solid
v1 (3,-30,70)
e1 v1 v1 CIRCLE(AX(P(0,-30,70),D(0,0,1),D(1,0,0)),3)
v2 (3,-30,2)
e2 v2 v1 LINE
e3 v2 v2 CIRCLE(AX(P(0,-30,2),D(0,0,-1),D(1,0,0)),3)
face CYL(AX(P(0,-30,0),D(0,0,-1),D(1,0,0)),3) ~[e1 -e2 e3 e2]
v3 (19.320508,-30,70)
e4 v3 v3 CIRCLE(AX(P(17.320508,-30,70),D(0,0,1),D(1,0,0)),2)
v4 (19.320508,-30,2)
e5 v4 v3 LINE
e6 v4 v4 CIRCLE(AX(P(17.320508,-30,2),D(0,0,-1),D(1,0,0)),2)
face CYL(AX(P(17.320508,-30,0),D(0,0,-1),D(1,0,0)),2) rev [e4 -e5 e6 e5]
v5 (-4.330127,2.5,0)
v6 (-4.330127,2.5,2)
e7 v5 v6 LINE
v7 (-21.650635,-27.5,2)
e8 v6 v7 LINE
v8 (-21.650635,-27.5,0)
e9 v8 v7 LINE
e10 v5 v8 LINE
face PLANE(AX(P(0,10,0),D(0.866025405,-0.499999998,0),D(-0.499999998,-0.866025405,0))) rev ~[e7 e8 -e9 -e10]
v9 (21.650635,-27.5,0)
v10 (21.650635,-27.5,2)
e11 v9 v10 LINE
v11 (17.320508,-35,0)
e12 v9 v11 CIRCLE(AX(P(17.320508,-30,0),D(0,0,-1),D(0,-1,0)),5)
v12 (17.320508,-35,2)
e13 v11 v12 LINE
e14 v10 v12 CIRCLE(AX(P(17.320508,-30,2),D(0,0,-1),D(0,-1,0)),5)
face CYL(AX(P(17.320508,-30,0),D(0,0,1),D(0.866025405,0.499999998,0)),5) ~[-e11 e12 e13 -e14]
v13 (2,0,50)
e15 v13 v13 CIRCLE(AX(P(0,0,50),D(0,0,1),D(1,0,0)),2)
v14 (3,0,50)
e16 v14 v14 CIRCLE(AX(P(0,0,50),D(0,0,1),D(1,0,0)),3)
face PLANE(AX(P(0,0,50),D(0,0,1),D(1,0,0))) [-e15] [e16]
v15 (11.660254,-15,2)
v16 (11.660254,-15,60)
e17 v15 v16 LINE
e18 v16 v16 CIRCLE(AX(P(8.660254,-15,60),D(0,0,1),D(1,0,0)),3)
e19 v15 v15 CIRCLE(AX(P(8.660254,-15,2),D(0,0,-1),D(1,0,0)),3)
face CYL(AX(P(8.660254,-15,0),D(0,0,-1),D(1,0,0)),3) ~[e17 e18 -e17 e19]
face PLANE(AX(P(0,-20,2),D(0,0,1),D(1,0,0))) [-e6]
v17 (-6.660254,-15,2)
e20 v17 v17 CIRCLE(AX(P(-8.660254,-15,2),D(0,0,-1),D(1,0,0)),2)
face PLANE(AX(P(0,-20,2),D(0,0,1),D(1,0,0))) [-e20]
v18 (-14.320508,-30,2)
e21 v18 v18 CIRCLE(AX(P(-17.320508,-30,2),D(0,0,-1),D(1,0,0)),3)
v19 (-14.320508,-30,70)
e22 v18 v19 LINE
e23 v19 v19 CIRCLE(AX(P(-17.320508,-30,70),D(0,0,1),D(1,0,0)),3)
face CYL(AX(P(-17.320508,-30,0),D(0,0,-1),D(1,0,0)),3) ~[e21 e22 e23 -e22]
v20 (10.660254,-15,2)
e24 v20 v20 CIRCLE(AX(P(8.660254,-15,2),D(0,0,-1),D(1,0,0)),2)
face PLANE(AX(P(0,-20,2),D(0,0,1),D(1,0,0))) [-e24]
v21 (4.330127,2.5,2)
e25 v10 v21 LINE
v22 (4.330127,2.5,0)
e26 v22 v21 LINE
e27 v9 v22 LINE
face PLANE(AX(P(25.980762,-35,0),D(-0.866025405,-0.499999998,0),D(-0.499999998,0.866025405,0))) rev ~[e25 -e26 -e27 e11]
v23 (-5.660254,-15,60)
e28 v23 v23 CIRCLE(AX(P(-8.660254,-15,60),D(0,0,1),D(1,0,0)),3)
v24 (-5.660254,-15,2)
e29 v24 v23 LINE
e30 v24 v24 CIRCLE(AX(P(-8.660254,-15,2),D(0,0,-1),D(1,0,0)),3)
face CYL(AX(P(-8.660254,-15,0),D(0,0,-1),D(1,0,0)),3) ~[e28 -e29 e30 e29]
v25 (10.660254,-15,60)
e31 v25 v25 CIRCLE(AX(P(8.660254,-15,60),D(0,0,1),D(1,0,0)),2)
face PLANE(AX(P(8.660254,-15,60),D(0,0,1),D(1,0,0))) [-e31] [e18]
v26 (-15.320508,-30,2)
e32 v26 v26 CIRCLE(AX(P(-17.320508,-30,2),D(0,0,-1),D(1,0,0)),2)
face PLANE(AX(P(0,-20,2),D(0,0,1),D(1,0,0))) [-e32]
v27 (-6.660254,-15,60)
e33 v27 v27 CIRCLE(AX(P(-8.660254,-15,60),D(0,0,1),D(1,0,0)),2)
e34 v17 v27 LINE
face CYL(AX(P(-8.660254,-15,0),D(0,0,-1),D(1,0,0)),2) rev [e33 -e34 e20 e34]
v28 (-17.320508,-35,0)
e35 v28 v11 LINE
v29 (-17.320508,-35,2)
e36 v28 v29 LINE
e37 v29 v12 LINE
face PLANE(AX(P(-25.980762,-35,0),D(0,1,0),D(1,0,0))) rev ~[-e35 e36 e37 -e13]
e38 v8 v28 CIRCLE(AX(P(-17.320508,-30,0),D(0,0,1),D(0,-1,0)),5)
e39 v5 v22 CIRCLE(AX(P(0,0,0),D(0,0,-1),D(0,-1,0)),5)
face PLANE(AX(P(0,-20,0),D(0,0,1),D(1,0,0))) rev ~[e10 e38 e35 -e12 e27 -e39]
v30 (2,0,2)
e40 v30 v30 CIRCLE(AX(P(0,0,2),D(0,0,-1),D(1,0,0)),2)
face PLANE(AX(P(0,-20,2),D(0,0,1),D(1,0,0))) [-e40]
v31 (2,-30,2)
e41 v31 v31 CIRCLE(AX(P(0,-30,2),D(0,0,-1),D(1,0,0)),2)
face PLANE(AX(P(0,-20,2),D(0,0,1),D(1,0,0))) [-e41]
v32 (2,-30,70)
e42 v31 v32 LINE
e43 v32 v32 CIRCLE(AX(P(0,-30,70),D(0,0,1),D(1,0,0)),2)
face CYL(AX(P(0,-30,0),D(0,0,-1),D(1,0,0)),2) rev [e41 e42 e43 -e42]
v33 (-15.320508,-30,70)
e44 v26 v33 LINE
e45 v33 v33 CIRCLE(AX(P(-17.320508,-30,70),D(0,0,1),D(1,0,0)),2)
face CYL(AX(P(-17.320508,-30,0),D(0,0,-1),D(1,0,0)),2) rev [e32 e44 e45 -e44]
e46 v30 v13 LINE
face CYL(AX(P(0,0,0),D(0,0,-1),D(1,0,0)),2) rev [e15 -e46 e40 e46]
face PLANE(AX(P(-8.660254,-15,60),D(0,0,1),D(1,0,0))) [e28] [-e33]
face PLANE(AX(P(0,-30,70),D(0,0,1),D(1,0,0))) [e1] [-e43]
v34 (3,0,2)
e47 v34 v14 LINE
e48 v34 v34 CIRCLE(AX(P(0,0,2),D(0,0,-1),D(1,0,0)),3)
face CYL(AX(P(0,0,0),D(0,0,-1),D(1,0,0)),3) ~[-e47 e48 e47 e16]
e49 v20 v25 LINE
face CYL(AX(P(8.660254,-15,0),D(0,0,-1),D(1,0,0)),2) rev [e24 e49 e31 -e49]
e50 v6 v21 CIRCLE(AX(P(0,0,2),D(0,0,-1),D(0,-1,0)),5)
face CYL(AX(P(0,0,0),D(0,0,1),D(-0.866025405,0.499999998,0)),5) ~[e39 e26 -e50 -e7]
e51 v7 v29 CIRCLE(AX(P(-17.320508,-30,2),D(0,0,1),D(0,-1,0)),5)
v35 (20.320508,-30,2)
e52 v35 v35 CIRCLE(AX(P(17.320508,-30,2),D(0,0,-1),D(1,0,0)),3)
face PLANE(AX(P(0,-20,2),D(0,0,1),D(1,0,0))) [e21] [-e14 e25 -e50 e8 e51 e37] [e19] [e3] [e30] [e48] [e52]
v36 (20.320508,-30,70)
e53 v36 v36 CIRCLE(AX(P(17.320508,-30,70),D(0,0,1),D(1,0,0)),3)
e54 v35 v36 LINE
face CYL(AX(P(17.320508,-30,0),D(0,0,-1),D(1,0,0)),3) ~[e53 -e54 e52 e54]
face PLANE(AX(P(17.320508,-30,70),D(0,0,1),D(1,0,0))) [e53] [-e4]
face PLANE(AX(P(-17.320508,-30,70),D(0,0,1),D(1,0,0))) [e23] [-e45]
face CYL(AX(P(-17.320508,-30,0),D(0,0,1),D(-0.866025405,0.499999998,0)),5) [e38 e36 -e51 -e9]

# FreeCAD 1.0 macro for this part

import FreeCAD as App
import Part
import Sketcher

V = App.Vector
Q = App.Units.Quantity


def edges_at(feature, points):
    """Names of the edges that pass closest to the given points."""
    edges = feature.Shape.Edges
    near = lambda p: min(range(len(edges)), key=lambda i: edges[i].distToShape(Part.Vertex(*p))[0])
    return sorted({f"Edge{near(p) + 1}" for p in points})

doc = App.newDocument("Part")
body = doc.addObject("PartDesign::Body", "Body")

sketch1 = doc.addObject("Sketcher::SketchObject", "Sketch")
body.addObject(sketch1)
sketch1.AttachmentSupport = (doc.XY_Plane, [""])
sketch1.MapMode = "FlatFace"
sketch1.addGeometry(Part.Circle(V(0, 0, 0), V(0, 0, 1), 3), False)
sketch1.addGeometry(Part.Circle(V(0, 0, 0), V(0, 0, 1), 2), False)
sketch1.addConstraint(Sketcher.Constraint("Coincident", 0, 3, -1, 1))
sketch1.addConstraint(Sketcher.Constraint("Coincident", 1, 3, -1, 1))
sketch1.addConstraint(Sketcher.Constraint("Diameter", 0, 6.0))
sketch1.addConstraint(Sketcher.Constraint("Diameter", 1, 4.0))
pad1 = doc.addObject("PartDesign::Pad", "Pad")
body.addObject(pad1)
pad1.Profile = sketch1
pad1.Length = 50
body2 = doc.addObject("PartDesign::Body", "Body001")

sketch2 = doc.addObject("Sketcher::SketchObject", "Sketch001")
body2.addObject(sketch2)
sketch2.AttachmentSupport = (doc.getObject("XY_Plane001"), [""])
sketch2.MapMode = "FlatFace"
sketch2.addGeometry(Part.Circle(V(-8.7, -15, 0), V(0, 0, 1), 3), False)
sketch2.addGeometry(Part.Circle(V(-8.7, -15, 0), V(0, 0, 1), 2), False)
sketch2.addConstraint(Sketcher.Constraint("Coincident", 1, 3, 0, 3))
sketch2.addConstraint(Sketcher.Constraint("Diameter", 0, 6.0))
sketch2.addConstraint(Sketcher.Constraint("Diameter", 1, 4.0))
sketch2.addConstraint(Sketcher.Constraint("DistanceY", 0, 3, -1, 1, 15.0))
sketch2.addConstraint(Sketcher.Constraint("DistanceX", 0, 3, -1, 1, 8.660254))
pad2 = doc.addObject("PartDesign::Pad", "Pad001")
body2.addObject(pad2)
pad2.Profile = sketch2
pad2.Length = 60
body3 = doc.addObject("PartDesign::Body", "Body002")

sketch3 = doc.addObject("Sketcher::SketchObject", "Sketch002")
body3.addObject(sketch3)
sketch3.AttachmentSupport = (doc.getObject("XY_Plane002"), [""])
sketch3.MapMode = "FlatFace"
sketch3.addGeometry(Part.Circle(V(8.7, -15, 0), V(0, 0, 1), 3), False)
sketch3.addGeometry(Part.Circle(V(8.7, -15, 0), V(0, 0, 1), 2), False)
sketch3.addConstraint(Sketcher.Constraint("Coincident", 1, 3, 0, 3))
sketch3.addConstraint(Sketcher.Constraint("Diameter", 0, 6.0))
sketch3.addConstraint(Sketcher.Constraint("Diameter", 1, 4.0))
sketch3.addConstraint(Sketcher.Constraint("DistanceY", 0, 3, -1, 1, 15.0))
sketch3.addConstraint(Sketcher.Constraint("DistanceX", -1, 1, 0, 3, 8.660254))
pad3 = doc.addObject("PartDesign::Pad", "Pad002")
body3.addObject(pad3)
pad3.Profile = sketch3
pad3.Length = 60
body4 = doc.addObject("PartDesign::Body", "Body003")

sketch4 = doc.addObject("Sketcher::SketchObject", "Sketch003")
body4.addObject(sketch4)
sketch4.AttachmentSupport = (doc.getObject("XY_Plane003"), [""])
sketch4.MapMode = "FlatFace"
sketch4.addGeometry(Part.Circle(V(17.3, -30, 0), V(0, 0, 1), 3), False)
sketch4.addGeometry(Part.Circle(V(17.3, -30, 0), V(0, 0, 1), 2), False)
sketch4.addConstraint(Sketcher.Constraint("Coincident", 1, 3, 0, 3))
sketch4.addConstraint(Sketcher.Constraint("Diameter", 0, 6.0))
sketch4.addConstraint(Sketcher.Constraint("Diameter", 1, 4.0))
sketch4.addConstraint(Sketcher.Constraint("DistanceY", 0, 3, -1, 1, 30.0))
sketch4.addConstraint(Sketcher.Constraint("DistanceX", -1, 1, 0, 3, 17.320508))
pad4 = doc.addObject("PartDesign::Pad", "Pad003")
body4.addObject(pad4)
pad4.Profile = sketch4
pad4.Length = 70
body5 = doc.addObject("PartDesign::Body", "Body004")

sketch5 = doc.addObject("Sketcher::SketchObject", "Sketch004")
body5.addObject(sketch5)
sketch5.AttachmentSupport = (doc.getObject("XY_Plane004"), [""])
sketch5.MapMode = "FlatFace"
sketch5.addGeometry(Part.Circle(V(0, -30, 0), V(0, 0, 1), 3), False)
sketch5.addGeometry(Part.Circle(V(0, -30, 0), V(0, 0, 1), 2), False)
sketch5.addConstraint(Sketcher.Constraint("Coincident", 1, 3, 0, 3))
sketch5.addConstraint(Sketcher.Constraint("PointOnObject", 0, 3, -2))
sketch5.addConstraint(Sketcher.Constraint("Diameter", 0, 6.0))
sketch5.addConstraint(Sketcher.Constraint("Diameter", 1, 4.0))
sketch5.addConstraint(Sketcher.Constraint("DistanceY", 0, 3, -1, 1, 30.0))
pad5 = doc.addObject("PartDesign::Pad", "Pad004")
body5.addObject(pad5)
pad5.Profile = sketch5
pad5.Length = 70
body6 = doc.addObject("PartDesign::Body", "Body005")

sketch6 = doc.addObject("Sketcher::SketchObject", "Sketch005")
body6.addObject(sketch6)
sketch6.AttachmentSupport = (doc.getObject("XY_Plane005"), [""])
sketch6.MapMode = "FlatFace"
sketch6.addGeometry(Part.Circle(V(-17.3, -30, 0), V(0, 0, 1), 3), False)
sketch6.addGeometry(Part.Circle(V(-17.3, -30, 0), V(0, 0, 1), 2), False)
sketch6.addConstraint(Sketcher.Constraint("Coincident", 1, 3, 0, 3))
sketch6.addConstraint(Sketcher.Constraint("Diameter", 0, 6.0))
sketch6.addConstraint(Sketcher.Constraint("Diameter", 1, 4.0))
sketch6.addConstraint(Sketcher.Constraint("DistanceY", 0, 3, -1, 1, 30.0))
sketch6.addConstraint(Sketcher.Constraint("DistanceX", 0, 3, -1, 1, 17.320508))
pad6 = doc.addObject("PartDesign::Pad", "Pad005")
body6.addObject(pad6)
pad6.Profile = sketch6
pad6.Length = 70
body.AllowCompound = True
doc.recompute()

boolean = doc.addObject("PartDesign::Boolean", "Boolean")
body.addObject(boolean)
boolean.Type = "Fuse"
boolean.addObjects([body2])
doc.recompute()

boolean2 = doc.addObject("PartDesign::Boolean", "Boolean001")
body.addObject(boolean2)
boolean2.Type = "Fuse"
boolean2.addObjects([body3])
doc.recompute()

boolean3 = doc.addObject("PartDesign::Boolean", "Boolean002")
body.addObject(boolean3)
boolean3.Type = "Fuse"
boolean3.addObjects([body4])
doc.recompute()

boolean4 = doc.addObject("PartDesign::Boolean", "Boolean003")
body.addObject(boolean4)
boolean4.Type = "Fuse"
boolean4.addObjects([body5])
doc.recompute()

boolean5 = doc.addObject("PartDesign::Boolean", "Boolean004")
body.addObject(boolean5)
boolean5.Type = "Fuse"
boolean5.addObjects([body6])

sketch7 = doc.addObject("Sketcher::SketchObject", "Sketch006")
body.addObject(sketch7)
sketch7.AttachmentSupport = (doc.XY_Plane, [""])
sketch7.MapMode = "FlatFace"
sketch7.addGeometry(Part.LineSegment(V(0, 10, 0), V(-26, -35, 0)), False)
sketch7.addGeometry(Part.LineSegment(V(-26, -35, 0), V(26, -35, 0)), False)
sketch7.addGeometry(Part.LineSegment(V(26, -35, 0), V(0, 10, 0)), False)
sketch7.addConstraint(Sketcher.Constraint("Coincident", 0, 2, 1, 1))
sketch7.addConstraint(Sketcher.Constraint("Coincident", 1, 2, 2, 1))
sketch7.addConstraint(Sketcher.Constraint("Coincident", 2, 2, 0, 1))
sketch7.addConstraint(Sketcher.Constraint("Horizontal", 1))
sketch7.addConstraint(Sketcher.Constraint("PointOnObject", 2, 2, -2))
sketch7.addConstraint(Sketcher.Constraint("Equal", 0, 2))
sketch7.addConstraint(Sketcher.Constraint("Angle", 0, Q("-120 deg")))
sketch7.addConstraint(Sketcher.Constraint("DistanceY", 0, 2, -1, 1, 35.0))
sketch7.addConstraint(Sketcher.Constraint("DistanceY", -1, 1, 2, 2, 10.0))
pad7 = doc.addObject("PartDesign::Pad", "Pad006")
body.addObject(pad7)
pad7.Profile = sketch7
pad7.Length = 2
doc.recompute()

fillet = doc.addObject("PartDesign::Fillet", "Fillet")
body.addObject(fillet)
fillet.Base = (pad7, edges_at(pad7, [(0, 10, 1), (-25.981, -35, 1), (25.981, -35, 1)]))
fillet.Radius = 5

doc.recompute()
